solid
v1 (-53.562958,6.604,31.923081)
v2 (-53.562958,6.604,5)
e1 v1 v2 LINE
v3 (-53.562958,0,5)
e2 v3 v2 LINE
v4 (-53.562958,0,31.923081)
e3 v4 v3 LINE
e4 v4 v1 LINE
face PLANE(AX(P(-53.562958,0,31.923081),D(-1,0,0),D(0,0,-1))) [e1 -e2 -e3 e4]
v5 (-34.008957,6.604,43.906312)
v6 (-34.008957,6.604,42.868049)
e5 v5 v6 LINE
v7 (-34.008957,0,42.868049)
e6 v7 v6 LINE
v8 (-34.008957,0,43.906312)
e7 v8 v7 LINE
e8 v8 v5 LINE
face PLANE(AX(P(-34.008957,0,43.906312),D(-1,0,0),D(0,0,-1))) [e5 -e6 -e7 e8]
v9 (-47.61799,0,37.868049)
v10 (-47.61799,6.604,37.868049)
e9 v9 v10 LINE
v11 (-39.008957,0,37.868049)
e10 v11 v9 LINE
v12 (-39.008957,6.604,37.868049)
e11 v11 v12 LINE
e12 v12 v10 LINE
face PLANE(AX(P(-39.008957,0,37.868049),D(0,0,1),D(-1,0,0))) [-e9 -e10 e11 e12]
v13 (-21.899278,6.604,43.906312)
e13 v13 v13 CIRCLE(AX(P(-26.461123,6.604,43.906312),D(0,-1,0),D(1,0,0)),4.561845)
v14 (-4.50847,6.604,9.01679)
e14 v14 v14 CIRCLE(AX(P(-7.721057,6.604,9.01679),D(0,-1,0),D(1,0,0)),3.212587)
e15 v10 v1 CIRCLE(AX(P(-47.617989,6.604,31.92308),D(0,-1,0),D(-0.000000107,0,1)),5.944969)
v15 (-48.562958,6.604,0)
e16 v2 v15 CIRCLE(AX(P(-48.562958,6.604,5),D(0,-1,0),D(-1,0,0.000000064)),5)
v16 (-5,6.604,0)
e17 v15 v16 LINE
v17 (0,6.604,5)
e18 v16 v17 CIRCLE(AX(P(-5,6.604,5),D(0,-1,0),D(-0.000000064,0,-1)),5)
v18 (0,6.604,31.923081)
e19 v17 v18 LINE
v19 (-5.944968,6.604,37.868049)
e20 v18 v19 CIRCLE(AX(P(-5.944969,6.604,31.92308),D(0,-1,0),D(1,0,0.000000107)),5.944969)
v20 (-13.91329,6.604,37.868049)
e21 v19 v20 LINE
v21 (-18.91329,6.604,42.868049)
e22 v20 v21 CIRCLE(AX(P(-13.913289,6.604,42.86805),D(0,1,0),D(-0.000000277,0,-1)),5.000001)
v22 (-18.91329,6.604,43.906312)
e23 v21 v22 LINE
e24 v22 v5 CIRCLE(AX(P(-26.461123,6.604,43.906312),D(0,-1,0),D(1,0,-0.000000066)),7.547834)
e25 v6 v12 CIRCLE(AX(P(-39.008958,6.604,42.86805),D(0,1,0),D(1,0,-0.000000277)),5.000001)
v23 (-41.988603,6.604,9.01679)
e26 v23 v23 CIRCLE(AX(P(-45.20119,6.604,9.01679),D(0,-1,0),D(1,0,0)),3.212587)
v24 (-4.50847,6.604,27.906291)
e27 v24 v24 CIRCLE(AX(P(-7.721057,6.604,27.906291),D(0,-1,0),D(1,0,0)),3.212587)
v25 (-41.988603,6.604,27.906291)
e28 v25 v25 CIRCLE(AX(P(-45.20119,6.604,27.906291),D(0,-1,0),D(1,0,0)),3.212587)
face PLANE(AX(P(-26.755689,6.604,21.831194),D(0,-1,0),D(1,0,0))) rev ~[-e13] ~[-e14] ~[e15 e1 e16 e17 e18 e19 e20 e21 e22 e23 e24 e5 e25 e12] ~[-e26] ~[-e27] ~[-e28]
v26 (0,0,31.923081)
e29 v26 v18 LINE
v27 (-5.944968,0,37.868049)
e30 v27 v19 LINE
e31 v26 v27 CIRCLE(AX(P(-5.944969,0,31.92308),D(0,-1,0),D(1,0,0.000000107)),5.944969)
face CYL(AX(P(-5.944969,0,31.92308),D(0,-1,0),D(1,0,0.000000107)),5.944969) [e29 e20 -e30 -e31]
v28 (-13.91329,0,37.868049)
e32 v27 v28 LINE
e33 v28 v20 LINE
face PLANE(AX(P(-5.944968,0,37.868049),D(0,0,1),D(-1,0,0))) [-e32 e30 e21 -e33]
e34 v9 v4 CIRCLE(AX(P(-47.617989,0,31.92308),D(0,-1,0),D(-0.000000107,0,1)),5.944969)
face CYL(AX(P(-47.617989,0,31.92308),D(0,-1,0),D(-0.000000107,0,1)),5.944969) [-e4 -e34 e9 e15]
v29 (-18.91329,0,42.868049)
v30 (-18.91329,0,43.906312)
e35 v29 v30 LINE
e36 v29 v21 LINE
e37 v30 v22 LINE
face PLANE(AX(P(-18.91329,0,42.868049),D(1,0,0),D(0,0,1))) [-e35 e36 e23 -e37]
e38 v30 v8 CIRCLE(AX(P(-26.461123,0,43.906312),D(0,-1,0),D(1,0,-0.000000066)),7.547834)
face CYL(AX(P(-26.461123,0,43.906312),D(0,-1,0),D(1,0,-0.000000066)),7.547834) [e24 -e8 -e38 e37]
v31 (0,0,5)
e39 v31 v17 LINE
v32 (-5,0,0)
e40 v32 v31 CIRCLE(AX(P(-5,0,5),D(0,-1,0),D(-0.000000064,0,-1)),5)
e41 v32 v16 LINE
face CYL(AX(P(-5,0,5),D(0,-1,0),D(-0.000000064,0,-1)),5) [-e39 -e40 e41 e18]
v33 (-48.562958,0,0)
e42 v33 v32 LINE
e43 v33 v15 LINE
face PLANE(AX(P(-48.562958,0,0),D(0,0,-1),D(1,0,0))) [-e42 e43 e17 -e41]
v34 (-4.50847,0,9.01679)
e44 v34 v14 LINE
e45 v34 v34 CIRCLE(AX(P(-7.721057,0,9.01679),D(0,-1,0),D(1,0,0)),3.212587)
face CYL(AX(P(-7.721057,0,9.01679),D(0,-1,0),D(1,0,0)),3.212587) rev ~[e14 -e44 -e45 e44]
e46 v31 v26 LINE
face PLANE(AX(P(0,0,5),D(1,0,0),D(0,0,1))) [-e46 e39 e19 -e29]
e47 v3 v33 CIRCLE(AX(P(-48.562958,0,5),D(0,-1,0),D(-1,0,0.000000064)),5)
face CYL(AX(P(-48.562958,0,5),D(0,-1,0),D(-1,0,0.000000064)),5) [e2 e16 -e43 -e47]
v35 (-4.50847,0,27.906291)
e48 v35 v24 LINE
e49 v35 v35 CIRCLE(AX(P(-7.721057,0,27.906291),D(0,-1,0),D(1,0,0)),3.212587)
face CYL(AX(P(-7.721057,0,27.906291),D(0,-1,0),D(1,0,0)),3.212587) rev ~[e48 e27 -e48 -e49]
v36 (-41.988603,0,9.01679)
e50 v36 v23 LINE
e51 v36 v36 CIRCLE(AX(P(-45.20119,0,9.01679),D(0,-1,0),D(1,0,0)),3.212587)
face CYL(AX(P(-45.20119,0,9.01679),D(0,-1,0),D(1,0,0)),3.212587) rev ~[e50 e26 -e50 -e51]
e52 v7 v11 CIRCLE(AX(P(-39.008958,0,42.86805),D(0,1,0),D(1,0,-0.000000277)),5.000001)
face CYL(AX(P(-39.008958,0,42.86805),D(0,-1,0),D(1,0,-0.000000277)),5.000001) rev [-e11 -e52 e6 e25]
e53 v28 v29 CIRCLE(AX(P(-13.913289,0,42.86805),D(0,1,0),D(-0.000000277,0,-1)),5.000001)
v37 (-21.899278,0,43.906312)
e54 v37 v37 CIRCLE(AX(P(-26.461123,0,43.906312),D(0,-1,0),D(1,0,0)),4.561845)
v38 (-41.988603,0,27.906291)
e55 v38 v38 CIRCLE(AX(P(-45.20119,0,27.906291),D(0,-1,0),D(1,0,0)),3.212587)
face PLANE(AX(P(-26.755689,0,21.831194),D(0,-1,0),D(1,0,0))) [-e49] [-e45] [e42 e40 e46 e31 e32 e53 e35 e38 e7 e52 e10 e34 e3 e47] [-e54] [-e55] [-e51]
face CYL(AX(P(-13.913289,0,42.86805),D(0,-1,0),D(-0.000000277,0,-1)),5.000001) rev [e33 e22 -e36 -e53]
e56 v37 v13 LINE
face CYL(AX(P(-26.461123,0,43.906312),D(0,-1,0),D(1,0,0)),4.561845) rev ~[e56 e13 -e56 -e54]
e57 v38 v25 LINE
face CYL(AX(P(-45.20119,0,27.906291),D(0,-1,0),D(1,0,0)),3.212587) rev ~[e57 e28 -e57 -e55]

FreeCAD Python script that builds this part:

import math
import FreeCAD as App
import Part
import Sketcher
from FreeCAD import Vector
Q = App.Units.Quantity

doc = App.newDocument("Part")
params = doc.addObject("Spreadsheet::Sheet", "Params")
for row, (alias, value) in enumerate([
    ("sketch1_radius", "5 mm"),
    ("pad1_length", "6.604 mm"),
], start=1):
    params.set(f"A{row}", alias)
    params.set(f"B{row}", "=" + value)
    params.setAlias(f"B{row}", alias)

body = doc.addObject("PartDesign::Body", "Body")

# Sketch on XZ plane
sketch1 = doc.addObject("Sketcher::SketchObject", "Sketch")
body.addObject(sketch1)
sketch1.AttachmentSupport = (doc.XZ_Plane, [""])
sketch1.MapMode = "FlatFace"
sketch1.addGeometry(Part.LineSegment(Vector(-48.562958, 0, 0), Vector(-5, 0, 0)), False)
sketch1.addGeometry(Part.ArcOfCircle(Part.Circle(Vector(-5, 5, 0), Vector(0, 0, 1), 5), math.radians(-90.000004), math.radians(0.000004)), False)
sketch1.addGeometry(Part.LineSegment(Vector(0, 5, 0), Vector(0, 31.923081, 0)), False)
sketch1.addGeometry(Part.ArcOfCircle(Part.Circle(Vector(-5.944969, 31.92308, 0), Vector(0, 0, 1), 5.944969), math.radians(0.000006), math.radians(89.999994)), False)
sketch1.addGeometry(Part.LineSegment(Vector(-5.944968, 37.868049, 0), Vector(-13.91329, 37.868049, 0)), False)
sketch1.addGeometry(Part.ArcOfCircle(Part.Circle(Vector(-13.913289, 42.86805, 0), Vector(0, 0, 1), 5.000001), math.radians(-179.999984), math.radians(-90.000016)), False)
sketch1.addGeometry(Part.LineSegment(Vector(-18.91329, 42.868049, 0), Vector(-18.91329, 43.906312, 0)), False)
sketch1.addGeometry(Part.ArcOfCircle(Part.Circle(Vector(-26.461123, 43.906312, 0), Vector(0, 0, 1), 7.547834), math.radians(-0.000004), math.radians(180.000004)), False)
sketch1.addGeometry(Part.LineSegment(Vector(-34.008957, 43.906312, 0), Vector(-34.008957, 42.868049, 0)), False)
sketch1.addGeometry(Part.ArcOfCircle(Part.Circle(Vector(-39.008958, 42.86805, 0), Vector(0, 0, 1), 5.000001), math.radians(-89.999984), math.radians(-0.000016)), False)
sketch1.addGeometry(Part.LineSegment(Vector(-39.008957, 37.868049, 0), Vector(-47.61799, 37.868049, 0)), False)
sketch1.addGeometry(Part.ArcOfCircle(Part.Circle(Vector(-47.617989, 31.92308, 0), Vector(0, 0, 1), 5.944969), math.radians(90.000006), math.radians(179.999994)), False)
sketch1.addGeometry(Part.LineSegment(Vector(-53.562958, 31.923081, 0), Vector(-53.562958, 5, 0)), False)
sketch1.addGeometry(Part.ArcOfCircle(Part.Circle(Vector(-48.562958, 5, 0), Vector(0, 0, 1), 5), math.radians(179.999996), math.radians(270.000004)), False)
sketch1.addGeometry(Part.Circle(Vector(-45.20119, 9.01679, 0), Vector(0, 0, 1), 3.212587), False)
sketch1.addGeometry(Part.Circle(Vector(-7.721057, 9.01679, 0), Vector(0, 0, 1), 3.212587), False)
sketch1.addGeometry(Part.Circle(Vector(-45.20119, 27.906291, 0), Vector(0, 0, 1), 3.212587), False)
sketch1.addGeometry(Part.Circle(Vector(-7.721057, 27.906291, 0), Vector(0, 0, 1), 3.212587), False)
sketch1.addGeometry(Part.Circle(Vector(-26.461123, 43.906312, 0), Vector(0, 0, 1), 4.561845), False)
sketch1.addConstraint(Sketcher.Constraint("Tangent", 0, 2, 1, 1))
sketch1.addConstraint(Sketcher.Constraint("Tangent", 1, 2, 2, 1))
sketch1.addConstraint(Sketcher.Constraint("Tangent", 2, 2, 3, 1))
sketch1.addConstraint(Sketcher.Constraint("Tangent", 3, 2, 4, 1))
sketch1.addConstraint(Sketcher.Constraint("Tangent", 4, 2, 5, 2))
sketch1.addConstraint(Sketcher.Constraint("Tangent", 5, 1, 6, 1))
sketch1.addConstraint(Sketcher.Constraint("Tangent", 6, 2, 7, 1))
sketch1.addConstraint(Sketcher.Constraint("Tangent", 7, 2, 8, 1))
sketch1.addConstraint(Sketcher.Constraint("Tangent", 8, 2, 9, 2))
sketch1.addConstraint(Sketcher.Constraint("Tangent", 9, 1, 10, 1))
sketch1.addConstraint(Sketcher.Constraint("Tangent", 10, 2, 11, 1))
sketch1.addConstraint(Sketcher.Constraint("Tangent", 11, 2, 12, 1))
sketch1.addConstraint(Sketcher.Constraint("Tangent", 12, 2, 13, 1))
sketch1.addConstraint(Sketcher.Constraint("Tangent", 13, 2, 0, 1))
sketch1.addConstraint(Sketcher.Constraint("Horizontal", 0))
sketch1.addConstraint(Sketcher.Constraint("Vertical", 2))
sketch1.addConstraint(Sketcher.Constraint("Horizontal", 4))
sketch1.addConstraint(Sketcher.Constraint("Vertical", 6))
sketch1.addConstraint(Sketcher.Constraint("Vertical", 8))
sketch1.addConstraint(Sketcher.Constraint("Horizontal", 10))
sketch1.addConstraint(Sketcher.Constraint("Vertical", 12))
sketch1.addConstraint(Sketcher.Constraint("Coincident", 18, 3, 7, 3))
sketch1.addConstraint(Sketcher.Constraint("Equal", 1, 5))
sketch1.addConstraint(Sketcher.Constraint("Equal", 5, 9))
sketch1.addConstraint(Sketcher.Constraint("Equal", 3, 11))
sketch1.addConstraint(Sketcher.Constraint("Equal", 9, 13))
sketch1.addConstraint(Sketcher.Constraint("Equal", 14, 15))
sketch1.addConstraint(Sketcher.Constraint("Equal", 15, 16))
sketch1.addConstraint(Sketcher.Constraint("Equal", 16, 17))
sketch1.addConstraint(Sketcher.Constraint("PointOnObject", 0, 2, -1))
sketch1.addConstraint(Sketcher.Constraint("PointOnObject", 1, 2, -2))
sketch1.addConstraint(Sketcher.Constraint("Horizontal", 5, 3, 9, 3))
sketch1.addConstraint(Sketcher.Constraint("Horizontal", 14, 3, 15, 3))
sketch1.addConstraint(Sketcher.Constraint("Horizontal", 16, 3, 17, 3))
sketch1.addConstraint(Sketcher.Constraint("Vertical", 14, 3, 16, 3))
sketch1.addConstraint(Sketcher.Constraint("Vertical", 15, 3, 17, 3))
sketch1.addConstraint(Sketcher.Constraint("Radius", 1, Q("5 mm")))
sketch1.addConstraint(Sketcher.Constraint("Diameter", 18, Q("9.12369 mm")))
sketch1.addConstraint(Sketcher.Constraint("Radius", 3, Q("5.944969 mm")))
sketch1.addConstraint(Sketcher.Constraint("Diameter", 14, Q("6.425174 mm")))
sketch1.addConstraint(Sketcher.Constraint("Radius", 7, Q("7.547834 mm")))
sketch1.addConstraint(Sketcher.Constraint("DistanceX", 13, 3, 9, 3, Q("9.554 mm")))
sketch1.addConstraint(Sketcher.Constraint("DistanceX", 0, 1, 0, 2, Q("43.562958 mm")))
sketch1.addConstraint(Sketcher.Constraint("DistanceY", 2, 1, 2, 2, Q("26.923081 mm")))
sketch1.addConstraint(Sketcher.Constraint("DistanceX", 11, 3, 14, 3, Q("2.416799 mm")))
sketch1.addConstraint(Sketcher.Constraint("DistanceY", 14, 3, 16, 3, Q("18.889501 mm")))
sketch1.addConstraint(Sketcher.Constraint("DistanceY", 6, 1, 6, 2, Q("1.038263 mm")))
sketch1.addConstraint(Sketcher.Constraint("DistanceY", -1, 1, 14, 3, Q("9.01679 mm")))
sketch1.addConstraint(Sketcher.Constraint("DistanceX", 15, 3, 3, 3, Q("1.776088 mm")))
sketch1.setExpression("Constraints[36]", "Params.sketch1_radius")
pad1 = doc.addObject("PartDesign::Pad", "Pad")
body.addObject(pad1)
pad1.Profile = sketch1
pad1.setExpression("Length", "Params.pad1_length")
pad1.Reversed = True

doc.recompute()
